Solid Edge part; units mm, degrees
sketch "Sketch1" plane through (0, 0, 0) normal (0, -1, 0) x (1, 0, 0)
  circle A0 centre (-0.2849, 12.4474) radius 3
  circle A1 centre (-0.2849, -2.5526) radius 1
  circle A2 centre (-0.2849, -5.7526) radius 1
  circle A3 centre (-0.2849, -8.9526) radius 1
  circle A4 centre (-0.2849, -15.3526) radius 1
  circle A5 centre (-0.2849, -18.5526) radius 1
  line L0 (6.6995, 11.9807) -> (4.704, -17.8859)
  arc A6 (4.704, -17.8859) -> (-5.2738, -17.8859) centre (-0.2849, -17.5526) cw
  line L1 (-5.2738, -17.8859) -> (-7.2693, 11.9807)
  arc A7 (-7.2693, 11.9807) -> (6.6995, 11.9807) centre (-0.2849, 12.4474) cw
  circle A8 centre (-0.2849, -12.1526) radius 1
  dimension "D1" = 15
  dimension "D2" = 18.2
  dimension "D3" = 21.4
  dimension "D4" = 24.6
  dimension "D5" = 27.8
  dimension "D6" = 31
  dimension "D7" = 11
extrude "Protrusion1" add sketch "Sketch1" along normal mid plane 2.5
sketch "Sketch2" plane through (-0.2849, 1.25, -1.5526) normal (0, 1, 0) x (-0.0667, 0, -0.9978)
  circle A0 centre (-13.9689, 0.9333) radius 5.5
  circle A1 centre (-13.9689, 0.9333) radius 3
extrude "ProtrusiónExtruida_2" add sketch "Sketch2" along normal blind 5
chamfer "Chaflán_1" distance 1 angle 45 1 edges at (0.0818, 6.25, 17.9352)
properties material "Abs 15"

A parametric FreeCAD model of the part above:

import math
import FreeCAD as App
import Part
import Sketcher


def edges_at(feature, points):
    """Names of the edges that pass closest to the given points."""
    edges = feature.Shape.Edges
    near = lambda p: min(range(len(edges)), key=lambda i: edges[i].distToShape(Part.Vertex(*p))[0])
    return sorted({f"Edge{near(p) + 1}" for p in points})

doc = App.newDocument("Part")
params = doc.addObject("Spreadsheet::Sheet", "Params")
for row, (alias, value) in enumerate([
    ("sketch1_diameter", "2 mm"),
    ("sketch1_diameter2", "6 mm"),
    ("sketch1_radius", "7 mm"),
    ("sketch1_radius2", "5 mm"),
    ("pad1_length", "2.5 mm"),
    ("sketch2_diameter", "11 mm"),
    ("sketch2_diameter2", "6 mm"),
    ("pad2_length", "5 mm"),
    ("chamfer_size", "1 mm"),
], start=1):
    params.set(f"A{row}", alias)
    params.set(f"B{row}", "=" + value)
    params.setAlias(f"B{row}", alias)

body = doc.addObject("PartDesign::Body", "Body")

# Sketch on XZ plane
sketch1 = doc.addObject("Sketcher::SketchObject", "Sketch")
body.addObject(sketch1)
sketch1.AttachmentSupport = (doc.XZ_Plane, [""])
sketch1.MapMode = "FlatFace"
sketch1.addGeometry([
    Part.LineSegment(App.Vector(4.7, -17.9, 0), App.Vector(6.7, 12, 0)),  # 0
    Part.ArcOfCircle(Part.Circle(App.Vector(-0.3, 12.4, 0), App.Vector(0, 0, 1), 7), math.radians(-4), math.radians(184)),  # 1
    Part.LineSegment(App.Vector(-7.3, 12, 0), App.Vector(-5.3, -17.9, 0)),  # 2
    Part.ArcOfCircle(Part.Circle(App.Vector(-0.3, -17.6, 0), App.Vector(0, 0, 1), 5), math.radians(-176), math.radians(-4)),  # 3
    Part.Circle(App.Vector(-0.3, -18.6, 0), App.Vector(0, 0, 1), 1),  # 4
    Part.Circle(App.Vector(-0.3, -15.4, 0), App.Vector(0, 0, 1), 1),  # 5
    Part.Circle(App.Vector(-0.3, -12.2, 0), App.Vector(0, 0, 1), 1),  # 6
    Part.Circle(App.Vector(-0.3, -9, 0), App.Vector(0, 0, 1), 1),  # 7
    Part.Circle(App.Vector(-0.3, -5.8, 0), App.Vector(0, 0, 1), 1),  # 8
    Part.Circle(App.Vector(-0.3, -2.6, 0), App.Vector(0, 0, 1), 1),  # 9
    Part.Circle(App.Vector(-0.3, 12.4, 0), App.Vector(0, 0, 1), 3),  # 10
], False)
sketch1.addConstraint([
    Sketcher.Constraint("Tangent", 0, 2, 1, 1),
    Sketcher.Constraint("Tangent", 1, 2, 2, 1),
    Sketcher.Constraint("Tangent", 2, 2, 3, 1),
    Sketcher.Constraint("Tangent", 3, 2, 0, 1),
    Sketcher.Constraint("Coincident", 10, 3, 1, 3),
    Sketcher.Constraint("Equal", 4, 5),
    Sketcher.Constraint("Equal", 5, 6),
    Sketcher.Constraint("Equal", 6, 7),
    Sketcher.Constraint("Equal", 7, 8),
    Sketcher.Constraint("Equal", 8, 9),
    Sketcher.Constraint("Horizontal", 0, 2, 1, 2),
    Sketcher.Constraint("Vertical", 3, 3, 4, 3),
    Sketcher.Constraint("Vertical", 4, 3, 5, 3),
    Sketcher.Constraint("Vertical", 5, 3, 6, 3),
    Sketcher.Constraint("Vertical", 6, 3, 7, 3),
    Sketcher.Constraint("Vertical", 7, 3, 8, 3),
    Sketcher.Constraint("Vertical", 8, 3, 9, 3),
    Sketcher.Constraint("Diameter", 4, 2.0),
    Sketcher.Constraint("Diameter", 10, 6.0),
    Sketcher.Constraint("Radius", 1, 7.0),
    Sketcher.Constraint("Radius", 3, 5.0),
    Sketcher.Constraint("DistanceY", 3, 3, 1, 3, 30.0),
    Sketcher.Constraint("DistanceY", 4, 3, 3, 3, 1.0),
    Sketcher.Constraint("DistanceY", 9, 3, 1, 3, 15.0),
    Sketcher.Constraint("DistanceY", 3, 3, 5, 3, 2.2),
    Sketcher.Constraint("DistanceY", 5, 3, 6, 3, 3.2),
    Sketcher.Constraint("DistanceY", 6, 3, 7, 3, 3.2),
    Sketcher.Constraint("DistanceY", 7, 3, 8, 3, 3.2),
    Sketcher.Constraint("DistanceX", 1, 3, -1, 1, 0.285),
    Sketcher.Constraint("DistanceY", 2, 2, -1, 1, 17.886),
])
sketch1.setExpression("Constraints[17]", "Params.sketch1_diameter")
sketch1.setExpression("Constraints[18]", "Params.sketch1_diameter2")
sketch1.setExpression("Constraints[19]", "Params.sketch1_radius")
sketch1.setExpression("Constraints[20]", "Params.sketch1_radius2")
pad1 = doc.addObject("PartDesign::Pad", "Pad")
body.addObject(pad1)
pad1.Profile = sketch1
pad1.setExpression("Length", "Params.pad1_length")
pad1.Midplane = True

# Sketch on XZ plane
sketch2 = doc.addObject("Sketcher::SketchObject", "Sketch001")
body.addObject(sketch2)
sketch2.AttachmentSupport = (doc.XZ_Plane, [""])
sketch2.MapMode = "FlatFace"
sketch2.AttachmentOffset = App.Placement(App.Vector(0, 0, -1.25), App.Rotation())
sketch2.addGeometry([
    Part.Circle(App.Vector(-0.3, 12.4, 0), App.Vector(0, 0, 1), 5.5),
    Part.Circle(App.Vector(-0.3, 12.4, 0), App.Vector(0, 0, 1), 3),
], False)
sketch2.addConstraint([
    Sketcher.Constraint("Coincident", 1, 3, 0, 3),
    Sketcher.Constraint("Diameter", 0, 11.0),
    Sketcher.Constraint("Diameter", 1, 6.0),
    Sketcher.Constraint("DistanceX", 0, 3, -1, 1, 0.2844),
    Sketcher.Constraint("DistanceY", -1, 1, 0, 3, 12.4474),
])
sketch2.setExpression("Constraints[1]", "Params.sketch2_diameter")
sketch2.setExpression("Constraints[2]", "Params.sketch2_diameter2")
pad2 = doc.addObject("PartDesign::Pad", "Pad001")
body.addObject(pad2)
pad2.Profile = sketch2
pad2.setExpression("Length", "Params.pad2_length")
pad2.Reversed = True
doc.recompute()

chamfer = doc.addObject("PartDesign::Chamfer", "Chamfer")
body.addObject(chamfer)
chamfer.Base = (pad2, edges_at(pad2, [(0.082, 6.25, 17.935)]))
chamfer.setExpression("Size", "Params.chamfer_size")

doc.recompute()
